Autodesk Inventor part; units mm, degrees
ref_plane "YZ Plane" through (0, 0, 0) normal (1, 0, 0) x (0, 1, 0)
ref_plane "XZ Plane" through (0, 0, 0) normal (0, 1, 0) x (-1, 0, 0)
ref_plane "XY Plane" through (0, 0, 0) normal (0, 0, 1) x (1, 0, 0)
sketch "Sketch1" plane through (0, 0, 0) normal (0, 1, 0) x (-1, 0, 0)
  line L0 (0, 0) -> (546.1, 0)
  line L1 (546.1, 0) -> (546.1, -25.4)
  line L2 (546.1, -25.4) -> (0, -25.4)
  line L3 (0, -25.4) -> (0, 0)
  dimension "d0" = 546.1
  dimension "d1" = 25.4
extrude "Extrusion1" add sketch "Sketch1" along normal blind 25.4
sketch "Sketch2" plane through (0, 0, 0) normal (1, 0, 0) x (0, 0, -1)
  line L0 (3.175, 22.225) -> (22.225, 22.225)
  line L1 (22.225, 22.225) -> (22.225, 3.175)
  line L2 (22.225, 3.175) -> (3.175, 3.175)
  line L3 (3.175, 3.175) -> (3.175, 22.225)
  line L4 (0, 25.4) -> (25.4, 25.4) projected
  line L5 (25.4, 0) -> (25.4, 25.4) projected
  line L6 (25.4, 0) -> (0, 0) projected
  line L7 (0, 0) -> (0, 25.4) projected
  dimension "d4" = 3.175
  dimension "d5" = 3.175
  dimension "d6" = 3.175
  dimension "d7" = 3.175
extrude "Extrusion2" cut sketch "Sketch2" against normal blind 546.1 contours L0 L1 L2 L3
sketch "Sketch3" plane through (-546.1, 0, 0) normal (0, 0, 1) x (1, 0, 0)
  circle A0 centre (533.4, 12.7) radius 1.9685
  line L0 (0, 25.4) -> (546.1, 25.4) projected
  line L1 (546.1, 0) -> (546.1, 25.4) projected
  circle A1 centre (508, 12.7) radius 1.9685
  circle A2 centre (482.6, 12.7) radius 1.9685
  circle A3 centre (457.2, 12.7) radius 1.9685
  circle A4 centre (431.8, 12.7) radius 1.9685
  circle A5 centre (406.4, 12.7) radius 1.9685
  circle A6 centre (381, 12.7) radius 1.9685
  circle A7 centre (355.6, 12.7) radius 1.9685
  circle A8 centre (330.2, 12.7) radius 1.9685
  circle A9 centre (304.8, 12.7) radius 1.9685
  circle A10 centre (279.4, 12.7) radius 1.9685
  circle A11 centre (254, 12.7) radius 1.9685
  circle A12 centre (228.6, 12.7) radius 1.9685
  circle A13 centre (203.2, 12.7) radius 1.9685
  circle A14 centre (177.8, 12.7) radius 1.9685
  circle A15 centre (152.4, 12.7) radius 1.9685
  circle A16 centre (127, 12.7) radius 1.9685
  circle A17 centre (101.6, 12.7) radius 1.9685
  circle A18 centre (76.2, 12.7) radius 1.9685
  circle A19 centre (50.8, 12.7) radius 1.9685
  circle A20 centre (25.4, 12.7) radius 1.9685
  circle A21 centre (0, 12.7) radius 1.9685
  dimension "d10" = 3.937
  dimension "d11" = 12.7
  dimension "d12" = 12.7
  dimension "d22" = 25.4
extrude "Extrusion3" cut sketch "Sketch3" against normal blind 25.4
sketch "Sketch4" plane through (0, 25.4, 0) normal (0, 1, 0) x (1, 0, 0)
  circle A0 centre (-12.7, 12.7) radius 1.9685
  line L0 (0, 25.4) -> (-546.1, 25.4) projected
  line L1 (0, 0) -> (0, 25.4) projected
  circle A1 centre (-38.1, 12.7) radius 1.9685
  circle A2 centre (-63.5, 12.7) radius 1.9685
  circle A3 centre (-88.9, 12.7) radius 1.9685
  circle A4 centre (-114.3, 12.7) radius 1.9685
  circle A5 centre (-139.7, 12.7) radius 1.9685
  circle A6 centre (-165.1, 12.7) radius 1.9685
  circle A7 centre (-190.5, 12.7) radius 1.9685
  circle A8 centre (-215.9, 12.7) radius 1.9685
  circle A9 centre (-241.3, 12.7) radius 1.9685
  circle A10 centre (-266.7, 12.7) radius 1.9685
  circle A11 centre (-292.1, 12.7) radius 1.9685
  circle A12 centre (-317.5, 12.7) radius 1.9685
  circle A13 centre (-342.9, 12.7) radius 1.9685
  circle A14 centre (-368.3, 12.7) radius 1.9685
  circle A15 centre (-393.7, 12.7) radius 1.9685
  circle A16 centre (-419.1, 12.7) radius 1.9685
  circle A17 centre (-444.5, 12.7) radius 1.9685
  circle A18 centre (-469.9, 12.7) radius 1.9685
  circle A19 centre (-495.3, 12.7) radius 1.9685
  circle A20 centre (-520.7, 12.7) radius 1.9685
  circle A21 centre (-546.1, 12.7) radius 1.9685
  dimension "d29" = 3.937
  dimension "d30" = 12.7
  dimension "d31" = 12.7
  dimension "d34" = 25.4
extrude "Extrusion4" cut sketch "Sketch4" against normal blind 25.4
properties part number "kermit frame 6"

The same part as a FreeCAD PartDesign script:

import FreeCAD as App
import Part
import Sketcher
from FreeCAD import Vector
Q = App.Units.Quantity


def add_polygon(sketch, points):
    """Adds a closed chain of lines whose ends are joined by coincident constraints."""
    first, n = sketch.GeometryCount, len(points)
    for a, b in zip(points, points[1:] + points[:1]):
        sketch.addGeometry(Part.LineSegment(App.Vector(*a, 0), App.Vector(*b, 0)), False)
    for i in range(n):
        sketch.addConstraint(Sketcher.Constraint("Coincident", first + i, 2, first + (i + 1) % n, 1))

doc = App.newDocument("Part")
body = doc.addObject("PartDesign::Body", "Body")

# Sketch on XZ plane
sketch1 = body.newObject("Sketcher::SketchObject", "Sketch")
sketch1.AttachmentSupport = (doc.getObject("XZ_Plane"), [""])
sketch1.MapMode = "FlatFace"
add_polygon(sketch1, [(-546, 0), (0, 0), (0, -25), (-546, -25)])  # lines 0-3
sketch1.addConstraint([
    Sketcher.Constraint("Horizontal", 0),
    Sketcher.Constraint("Vertical", 1),
    Sketcher.Constraint("Horizontal", 2),
    Sketcher.Constraint("Vertical", 3),
    Sketcher.Constraint("Coincident", 0, 2, -1, 1),
    Sketcher.Constraint("DistanceY", 1, 2, 1, 1, Q("1 in")),
    Sketcher.Constraint("DistanceX", 0, 1, 0, 2, Q("21.5 in")),
])
pad1 = body.newObject("PartDesign::Pad", "Pad")
pad1.Profile = sketch1
pad1.Length = Q("1 in")
pad1.Reversed = True

# Sketch on YZ plane
sketch2 = body.newObject("Sketcher::SketchObject", "Sketch001")
sketch2.AttachmentSupport = (doc.getObject("YZ_Plane"), [""])
sketch2.MapMode = "FlatFace"
add_polygon(sketch2, [(22, -22), (22, -3), (3, -3), (3, -22)])  # lines 0-3
sketch2.addConstraint([
    Sketcher.Constraint("Vertical", 0),
    Sketcher.Constraint("Horizontal", 1),
    Sketcher.Constraint("Vertical", 2),
    Sketcher.Constraint("Horizontal", 3),
    Sketcher.Constraint("Equal", 3, 0),
    Sketcher.Constraint("DistanceY", 0, 2, -1, 1, Q("0.125 in")),
    Sketcher.Constraint("DistanceX", -1, 1, 1, 2, Q("0.125 in")),
    Sketcher.Constraint("DistanceX", 1, 2, 1, 1, Q("0.75 in")),
])
pocket1 = body.newObject("PartDesign::Pocket", "Pocket")
pocket1.Profile = sketch2
pocket1.Length = Q("21.5 in")

# Sketch on XY plane
sketch3 = body.newObject("Sketcher::SketchObject", "Sketch002")
sketch3.AttachmentSupport = (doc.getObject("XY_Plane"), [""])
sketch3.MapMode = "FlatFace"
sketch3.addGeometry([
    Part.Circle(Vector(-12.7, 12.7, 0), Vector(0, 0, 1), 2),  # 0
    Part.Circle(Vector(-38.1, 12.7, 0), Vector(0, 0, 1), 2),  # 1
    Part.Circle(Vector(-63.5, 12.7, 0), Vector(0, 0, 1), 2),  # 2
    Part.Circle(Vector(-88.9, 12.7, 0), Vector(0, 0, 1), 2),  # 3
    Part.Circle(Vector(-114.3, 12.7, 0), Vector(0, 0, 1), 2),  # 4
    Part.Circle(Vector(-139.7, 12.7, 0), Vector(0, 0, 1), 2),  # 5
    Part.Circle(Vector(-165.1, 12.7, 0), Vector(0, 0, 1), 2),  # 6
    Part.Circle(Vector(-190.5, 12.7, 0), Vector(0, 0, 1), 2),  # 7
    Part.Circle(Vector(-215.9, 12.7, 0), Vector(0, 0, 1), 2),  # 8
    Part.Circle(Vector(-241.3, 12.7, 0), Vector(0, 0, 1), 2),  # 9
    Part.Circle(Vector(-266.7, 12.7, 0), Vector(0, 0, 1), 2),  # 10
    Part.Circle(Vector(-292.1, 12.7, 0), Vector(0, 0, 1), 2),  # 11
    Part.Circle(Vector(-317.5, 12.7, 0), Vector(0, 0, 1), 2),  # 12
    Part.Circle(Vector(-342.9, 12.7, 0), Vector(0, 0, 1), 2),  # 13
    Part.Circle(Vector(-368.3, 12.7, 0), Vector(0, 0, 1), 2),  # 14
    Part.Circle(Vector(-393.7, 12.7, 0), Vector(0, 0, 1), 2),  # 15
    Part.Circle(Vector(-419.1, 12.7, 0), Vector(0, 0, 1), 2),  # 16
    Part.Circle(Vector(-444.5, 12.7, 0), Vector(0, 0, 1), 2),  # 17
    Part.Circle(Vector(-469.9, 12.7, 0), Vector(0, 0, 1), 2),  # 18
    Part.Circle(Vector(-495.3, 12.7, 0), Vector(0, 0, 1), 2),  # 19
    Part.Circle(Vector(-520.7, 12.7, 0), Vector(0, 0, 1), 2),  # 20
    Part.Circle(Vector(-546.1, 12.7, 0), Vector(0, 0, 1), 2),  # 21
], False)
sketch3.addConstraint([
    Sketcher.Constraint("Equal", 0, 1),
    Sketcher.Constraint("Equal", 1, 2),
    Sketcher.Constraint("Equal", 2, 3),
    Sketcher.Constraint("Equal", 3, 4),
    Sketcher.Constraint("Equal", 4, 5),
    Sketcher.Constraint("Equal", 5, 6),
    Sketcher.Constraint("Equal", 6, 7),
    Sketcher.Constraint("Equal", 7, 8),
    Sketcher.Constraint("Equal", 8, 9),
    Sketcher.Constraint("Equal", 9, 10),
    Sketcher.Constraint("Equal", 10, 11),
    Sketcher.Constraint("Equal", 11, 12),
    Sketcher.Constraint("Equal", 12, 13),
    Sketcher.Constraint("Equal", 13, 14),
    Sketcher.Constraint("Equal", 14, 15),
    Sketcher.Constraint("Equal", 15, 16),
    Sketcher.Constraint("Equal", 16, 17),
    Sketcher.Constraint("Equal", 17, 18),
    Sketcher.Constraint("Equal", 18, 19),
    Sketcher.Constraint("Equal", 19, 20),
    Sketcher.Constraint("Equal", 20, 21),
    Sketcher.Constraint("Horizontal", 0, 3, 1, 3),
    Sketcher.Constraint("Horizontal", 1, 3, 2, 3),
    Sketcher.Constraint("Horizontal", 2, 3, 3, 3),
    Sketcher.Constraint("Horizontal", 3, 3, 4, 3),
    Sketcher.Constraint("Horizontal", 4, 3, 5, 3),
    Sketcher.Constraint("Horizontal", 5, 3, 6, 3),
    Sketcher.Constraint("Horizontal", 6, 3, 7, 3),
    Sketcher.Constraint("Horizontal", 7, 3, 8, 3),
    Sketcher.Constraint("Horizontal", 8, 3, 9, 3),
    Sketcher.Constraint("Horizontal", 9, 3, 10, 3),
    Sketcher.Constraint("Horizontal", 10, 3, 11, 3),
    Sketcher.Constraint("Horizontal", 11, 3, 12, 3),
    Sketcher.Constraint("Horizontal", 12, 3, 13, 3),
    Sketcher.Constraint("Horizontal", 13, 3, 14, 3),
    Sketcher.Constraint("Horizontal", 14, 3, 15, 3),
    Sketcher.Constraint("Horizontal", 15, 3, 16, 3),
    Sketcher.Constraint("Horizontal", 16, 3, 17, 3),
    Sketcher.Constraint("Horizontal", 17, 3, 18, 3),
    Sketcher.Constraint("Horizontal", 18, 3, 19, 3),
    Sketcher.Constraint("Horizontal", 19, 3, 20, 3),
    Sketcher.Constraint("Horizontal", 20, 3, 21, 3),
    Sketcher.Constraint("Diameter", 0, Q("0.155 in")),
    Sketcher.Constraint("DistanceX", 1, 3, 0, 3, Q("1 in")),
    Sketcher.Constraint("DistanceX", 2, 3, 1, 3, Q("1 in")),
    Sketcher.Constraint("DistanceX", 3, 3, 2, 3, Q("1 in")),
    Sketcher.Constraint("DistanceX", 4, 3, 3, 3, Q("1 in")),
    Sketcher.Constraint("DistanceX", 5, 3, 4, 3, Q("1 in")),
    Sketcher.Constraint("DistanceX", 6, 3, 5, 3, Q("1 in")),
    Sketcher.Constraint("DistanceX", 7, 3, 6, 3, Q("1 in")),
    Sketcher.Constraint("DistanceX", 8, 3, 7, 3, Q("1 in")),
    Sketcher.Constraint("DistanceX", 9, 3, 8, 3, Q("1 in")),
    Sketcher.Constraint("DistanceX", 10, 3, 9, 3, Q("1 in")),
    Sketcher.Constraint("DistanceX", 11, 3, 10, 3, Q("1 in")),
    Sketcher.Constraint("DistanceX", 12, 3, 11, 3, Q("1 in")),
    Sketcher.Constraint("DistanceX", 13, 3, 12, 3, Q("1 in")),
    Sketcher.Constraint("DistanceX", 14, 3, 13, 3, Q("1 in")),
    Sketcher.Constraint("DistanceX", 15, 3, 14, 3, Q("1 in")),
    Sketcher.Constraint("DistanceX", 16, 3, 15, 3, Q("1 in")),
    Sketcher.Constraint("DistanceX", 17, 3, 16, 3, Q("1 in")),
    Sketcher.Constraint("DistanceX", 18, 3, 17, 3, Q("1 in")),
    Sketcher.Constraint("DistanceX", 19, 3, 18, 3, Q("1 in")),
    Sketcher.Constraint("DistanceX", 20, 3, 19, 3, Q("1 in")),
    Sketcher.Constraint("DistanceX", 21, 3, 20, 3, Q("1 in")),
    Sketcher.Constraint("DistanceX", 0, 3, -1, 1, Q("0.5 in")),
    Sketcher.Constraint("DistanceY", -1, 1, 0, 3, Q("0.5 in")),
])
pocket2 = body.newObject("PartDesign::Pocket", "Pocket001")
pocket2.Profile = sketch3
pocket2.Length = Q("1 in")

# Sketch on XZ plane
sketch4 = body.newObject("Sketcher::SketchObject", "Sketch003")
sketch4.AttachmentSupport = (doc.getObject("XZ_Plane"), [""])
sketch4.MapMode = "FlatFace"
sketch4.AttachmentOffset = App.Placement(Vector(0, 0, -1 * 25.4), App.Rotation())
sketch4.addGeometry([
    Part.Circle(Vector(-12.7, -12.7, 0), Vector(0, 0, 1), 2),  # 0
    Part.Circle(Vector(-38.1, -12.7, 0), Vector(0, 0, 1), 2),  # 1
    Part.Circle(Vector(-63.5, -12.7, 0), Vector(0, 0, 1), 2),  # 2
    Part.Circle(Vector(-88.9, -12.7, 0), Vector(0, 0, 1), 2),  # 3
    Part.Circle(Vector(-114.3, -12.7, 0), Vector(0, 0, 1), 2),  # 4
    Part.Circle(Vector(-139.7, -12.7, 0), Vector(0, 0, 1), 2),  # 5
    Part.Circle(Vector(-165.1, -12.7, 0), Vector(0, 0, 1), 2),  # 6
    Part.Circle(Vector(-190.5, -12.7, 0), Vector(0, 0, 1), 2),  # 7
    Part.Circle(Vector(-215.9, -12.7, 0), Vector(0, 0, 1), 2),  # 8
    Part.Circle(Vector(-241.3, -12.7, 0), Vector(0, 0, 1), 2),  # 9
    Part.Circle(Vector(-266.7, -12.7, 0), Vector(0, 0, 1), 2),  # 10
    Part.Circle(Vector(-292.1, -12.7, 0), Vector(0, 0, 1), 2),  # 11
    Part.Circle(Vector(-317.5, -12.7, 0), Vector(0, 0, 1), 2),  # 12
    Part.Circle(Vector(-342.9, -12.7, 0), Vector(0, 0, 1), 2),  # 13
    Part.Circle(Vector(-368.3, -12.7, 0), Vector(0, 0, 1), 2),  # 14
    Part.Circle(Vector(-393.7, -12.7, 0), Vector(0, 0, 1), 2),  # 15
    Part.Circle(Vector(-419.1, -12.7, 0), Vector(0, 0, 1), 2),  # 16
    Part.Circle(Vector(-444.5, -12.7, 0), Vector(0, 0, 1), 2),  # 17
    Part.Circle(Vector(-469.9, -12.7, 0), Vector(0, 0, 1), 2),  # 18
    Part.Circle(Vector(-495.3, -12.7, 0), Vector(0, 0, 1), 2),  # 19
    Part.Circle(Vector(-520.7, -12.7, 0), Vector(0, 0, 1), 2),  # 20
    Part.Circle(Vector(-546.1, -12.7, 0), Vector(0, 0, 1), 2),  # 21
], False)
sketch4.addConstraint([
    Sketcher.Constraint("Equal", 0, 1),
    Sketcher.Constraint("Equal", 1, 2),
    Sketcher.Constraint("Equal", 2, 3),
    Sketcher.Constraint("Equal", 3, 4),
    Sketcher.Constraint("Equal", 4, 5),
    Sketcher.Constraint("Equal", 5, 6),
    Sketcher.Constraint("Equal", 6, 7),
    Sketcher.Constraint("Equal", 7, 8),
    Sketcher.Constraint("Equal", 8, 9),
    Sketcher.Constraint("Equal", 9, 10),
    Sketcher.Constraint("Equal", 10, 11),
    Sketcher.Constraint("Equal", 11, 12),
    Sketcher.Constraint("Equal", 12, 13),
    Sketcher.Constraint("Equal", 13, 14),
    Sketcher.Constraint("Equal", 14, 15),
    Sketcher.Constraint("Equal", 15, 16),
    Sketcher.Constraint("Equal", 16, 17),
    Sketcher.Constraint("Equal", 17, 18),
    Sketcher.Constraint("Equal", 18, 19),
    Sketcher.Constraint("Equal", 19, 20),
    Sketcher.Constraint("Equal", 20, 21),
    Sketcher.Constraint("Horizontal", 0, 3, 1, 3),
    Sketcher.Constraint("Horizontal", 1, 3, 2, 3),
    Sketcher.Constraint("Horizontal", 2, 3, 3, 3),
    Sketcher.Constraint("Horizontal", 3, 3, 4, 3),
    Sketcher.Constraint("Horizontal", 4, 3, 5, 3),
    Sketcher.Constraint("Horizontal", 5, 3, 6, 3),
    Sketcher.Constraint("Horizontal", 6, 3, 7, 3),
    Sketcher.Constraint("Horizontal", 7, 3, 8, 3),
    Sketcher.Constraint("Horizontal", 8, 3, 9, 3),
    Sketcher.Constraint("Horizontal", 9, 3, 10, 3),
    Sketcher.Constraint("Horizontal", 10, 3, 11, 3),
    Sketcher.Constraint("Horizontal", 11, 3, 12, 3),
    Sketcher.Constraint("Horizontal", 12, 3, 13, 3),
    Sketcher.Constraint("Horizontal", 13, 3, 14, 3),
    Sketcher.Constraint("Horizontal", 14, 3, 15, 3),
    Sketcher.Constraint("Horizontal", 15, 3, 16, 3),
    Sketcher.Constraint("Horizontal", 16, 3, 17, 3),
    Sketcher.Constraint("Horizontal", 17, 3, 18, 3),
    Sketcher.Constraint("Horizontal", 18, 3, 19, 3),
    Sketcher.Constraint("Horizontal", 19, 3, 20, 3),
    Sketcher.Constraint("Horizontal", 20, 3, 21, 3),
    Sketcher.Constraint("Diameter", 0, Q("0.155 in")),
    Sketcher.Constraint("DistanceX", 1, 3, 0, 3, Q("1 in")),
    Sketcher.Constraint("DistanceX", 2, 3, 1, 3, Q("1 in")),
    Sketcher.Constraint("DistanceX", 3, 3, 2, 3, Q("1 in")),
    Sketcher.Constraint("DistanceX", 4, 3, 3, 3, Q("1 in")),
    Sketcher.Constraint("DistanceX", 5, 3, 4, 3, Q("1 in")),
    Sketcher.Constraint("DistanceX", 6, 3, 5, 3, Q("1 in")),
    Sketcher.Constraint("DistanceX", 7, 3, 6, 3, Q("1 in")),
    Sketcher.Constraint("DistanceX", 8, 3, 7, 3, Q("1 in")),
    Sketcher.Constraint("DistanceX", 9, 3, 8, 3, Q("1 in")),
    Sketcher.Constraint("DistanceX", 10, 3, 9, 3, Q("1 in")),
    Sketcher.Constraint("DistanceX", 11, 3, 10, 3, Q("1 in")),
    Sketcher.Constraint("DistanceX", 12, 3, 11, 3, Q("1 in")),
    Sketcher.Constraint("DistanceX", 13, 3, 12, 3, Q("1 in")),
    Sketcher.Constraint("DistanceX", 14, 3, 13, 3, Q("1 in")),
    Sketcher.Constraint("DistanceX", 15, 3, 14, 3, Q("1 in")),
    Sketcher.Constraint("DistanceX", 16, 3, 15, 3, Q("1 in")),
    Sketcher.Constraint("DistanceX", 17, 3, 16, 3, Q("1 in")),
    Sketcher.Constraint("DistanceX", 18, 3, 17, 3, Q("1 in")),
    Sketcher.Constraint("DistanceX", 19, 3, 18, 3, Q("1 in")),
    Sketcher.Constraint("DistanceX", 20, 3, 19, 3, Q("1 in")),
    Sketcher.Constraint("DistanceX", 21, 3, 20, 3, Q("1 in")),
    Sketcher.Constraint("DistanceX", 0, 3, -1, 1, Q("0.5 in")),
    Sketcher.Constraint("DistanceY", 0, 3, -1, 1, Q("0.5 in")),
])
pocket3 = body.newObject("PartDesign::Pocket", "Pocket002")
pocket3.Profile = sketch4
pocket3.Length = Q("1 in")
pocket3.Reversed = True

doc.recompute()
